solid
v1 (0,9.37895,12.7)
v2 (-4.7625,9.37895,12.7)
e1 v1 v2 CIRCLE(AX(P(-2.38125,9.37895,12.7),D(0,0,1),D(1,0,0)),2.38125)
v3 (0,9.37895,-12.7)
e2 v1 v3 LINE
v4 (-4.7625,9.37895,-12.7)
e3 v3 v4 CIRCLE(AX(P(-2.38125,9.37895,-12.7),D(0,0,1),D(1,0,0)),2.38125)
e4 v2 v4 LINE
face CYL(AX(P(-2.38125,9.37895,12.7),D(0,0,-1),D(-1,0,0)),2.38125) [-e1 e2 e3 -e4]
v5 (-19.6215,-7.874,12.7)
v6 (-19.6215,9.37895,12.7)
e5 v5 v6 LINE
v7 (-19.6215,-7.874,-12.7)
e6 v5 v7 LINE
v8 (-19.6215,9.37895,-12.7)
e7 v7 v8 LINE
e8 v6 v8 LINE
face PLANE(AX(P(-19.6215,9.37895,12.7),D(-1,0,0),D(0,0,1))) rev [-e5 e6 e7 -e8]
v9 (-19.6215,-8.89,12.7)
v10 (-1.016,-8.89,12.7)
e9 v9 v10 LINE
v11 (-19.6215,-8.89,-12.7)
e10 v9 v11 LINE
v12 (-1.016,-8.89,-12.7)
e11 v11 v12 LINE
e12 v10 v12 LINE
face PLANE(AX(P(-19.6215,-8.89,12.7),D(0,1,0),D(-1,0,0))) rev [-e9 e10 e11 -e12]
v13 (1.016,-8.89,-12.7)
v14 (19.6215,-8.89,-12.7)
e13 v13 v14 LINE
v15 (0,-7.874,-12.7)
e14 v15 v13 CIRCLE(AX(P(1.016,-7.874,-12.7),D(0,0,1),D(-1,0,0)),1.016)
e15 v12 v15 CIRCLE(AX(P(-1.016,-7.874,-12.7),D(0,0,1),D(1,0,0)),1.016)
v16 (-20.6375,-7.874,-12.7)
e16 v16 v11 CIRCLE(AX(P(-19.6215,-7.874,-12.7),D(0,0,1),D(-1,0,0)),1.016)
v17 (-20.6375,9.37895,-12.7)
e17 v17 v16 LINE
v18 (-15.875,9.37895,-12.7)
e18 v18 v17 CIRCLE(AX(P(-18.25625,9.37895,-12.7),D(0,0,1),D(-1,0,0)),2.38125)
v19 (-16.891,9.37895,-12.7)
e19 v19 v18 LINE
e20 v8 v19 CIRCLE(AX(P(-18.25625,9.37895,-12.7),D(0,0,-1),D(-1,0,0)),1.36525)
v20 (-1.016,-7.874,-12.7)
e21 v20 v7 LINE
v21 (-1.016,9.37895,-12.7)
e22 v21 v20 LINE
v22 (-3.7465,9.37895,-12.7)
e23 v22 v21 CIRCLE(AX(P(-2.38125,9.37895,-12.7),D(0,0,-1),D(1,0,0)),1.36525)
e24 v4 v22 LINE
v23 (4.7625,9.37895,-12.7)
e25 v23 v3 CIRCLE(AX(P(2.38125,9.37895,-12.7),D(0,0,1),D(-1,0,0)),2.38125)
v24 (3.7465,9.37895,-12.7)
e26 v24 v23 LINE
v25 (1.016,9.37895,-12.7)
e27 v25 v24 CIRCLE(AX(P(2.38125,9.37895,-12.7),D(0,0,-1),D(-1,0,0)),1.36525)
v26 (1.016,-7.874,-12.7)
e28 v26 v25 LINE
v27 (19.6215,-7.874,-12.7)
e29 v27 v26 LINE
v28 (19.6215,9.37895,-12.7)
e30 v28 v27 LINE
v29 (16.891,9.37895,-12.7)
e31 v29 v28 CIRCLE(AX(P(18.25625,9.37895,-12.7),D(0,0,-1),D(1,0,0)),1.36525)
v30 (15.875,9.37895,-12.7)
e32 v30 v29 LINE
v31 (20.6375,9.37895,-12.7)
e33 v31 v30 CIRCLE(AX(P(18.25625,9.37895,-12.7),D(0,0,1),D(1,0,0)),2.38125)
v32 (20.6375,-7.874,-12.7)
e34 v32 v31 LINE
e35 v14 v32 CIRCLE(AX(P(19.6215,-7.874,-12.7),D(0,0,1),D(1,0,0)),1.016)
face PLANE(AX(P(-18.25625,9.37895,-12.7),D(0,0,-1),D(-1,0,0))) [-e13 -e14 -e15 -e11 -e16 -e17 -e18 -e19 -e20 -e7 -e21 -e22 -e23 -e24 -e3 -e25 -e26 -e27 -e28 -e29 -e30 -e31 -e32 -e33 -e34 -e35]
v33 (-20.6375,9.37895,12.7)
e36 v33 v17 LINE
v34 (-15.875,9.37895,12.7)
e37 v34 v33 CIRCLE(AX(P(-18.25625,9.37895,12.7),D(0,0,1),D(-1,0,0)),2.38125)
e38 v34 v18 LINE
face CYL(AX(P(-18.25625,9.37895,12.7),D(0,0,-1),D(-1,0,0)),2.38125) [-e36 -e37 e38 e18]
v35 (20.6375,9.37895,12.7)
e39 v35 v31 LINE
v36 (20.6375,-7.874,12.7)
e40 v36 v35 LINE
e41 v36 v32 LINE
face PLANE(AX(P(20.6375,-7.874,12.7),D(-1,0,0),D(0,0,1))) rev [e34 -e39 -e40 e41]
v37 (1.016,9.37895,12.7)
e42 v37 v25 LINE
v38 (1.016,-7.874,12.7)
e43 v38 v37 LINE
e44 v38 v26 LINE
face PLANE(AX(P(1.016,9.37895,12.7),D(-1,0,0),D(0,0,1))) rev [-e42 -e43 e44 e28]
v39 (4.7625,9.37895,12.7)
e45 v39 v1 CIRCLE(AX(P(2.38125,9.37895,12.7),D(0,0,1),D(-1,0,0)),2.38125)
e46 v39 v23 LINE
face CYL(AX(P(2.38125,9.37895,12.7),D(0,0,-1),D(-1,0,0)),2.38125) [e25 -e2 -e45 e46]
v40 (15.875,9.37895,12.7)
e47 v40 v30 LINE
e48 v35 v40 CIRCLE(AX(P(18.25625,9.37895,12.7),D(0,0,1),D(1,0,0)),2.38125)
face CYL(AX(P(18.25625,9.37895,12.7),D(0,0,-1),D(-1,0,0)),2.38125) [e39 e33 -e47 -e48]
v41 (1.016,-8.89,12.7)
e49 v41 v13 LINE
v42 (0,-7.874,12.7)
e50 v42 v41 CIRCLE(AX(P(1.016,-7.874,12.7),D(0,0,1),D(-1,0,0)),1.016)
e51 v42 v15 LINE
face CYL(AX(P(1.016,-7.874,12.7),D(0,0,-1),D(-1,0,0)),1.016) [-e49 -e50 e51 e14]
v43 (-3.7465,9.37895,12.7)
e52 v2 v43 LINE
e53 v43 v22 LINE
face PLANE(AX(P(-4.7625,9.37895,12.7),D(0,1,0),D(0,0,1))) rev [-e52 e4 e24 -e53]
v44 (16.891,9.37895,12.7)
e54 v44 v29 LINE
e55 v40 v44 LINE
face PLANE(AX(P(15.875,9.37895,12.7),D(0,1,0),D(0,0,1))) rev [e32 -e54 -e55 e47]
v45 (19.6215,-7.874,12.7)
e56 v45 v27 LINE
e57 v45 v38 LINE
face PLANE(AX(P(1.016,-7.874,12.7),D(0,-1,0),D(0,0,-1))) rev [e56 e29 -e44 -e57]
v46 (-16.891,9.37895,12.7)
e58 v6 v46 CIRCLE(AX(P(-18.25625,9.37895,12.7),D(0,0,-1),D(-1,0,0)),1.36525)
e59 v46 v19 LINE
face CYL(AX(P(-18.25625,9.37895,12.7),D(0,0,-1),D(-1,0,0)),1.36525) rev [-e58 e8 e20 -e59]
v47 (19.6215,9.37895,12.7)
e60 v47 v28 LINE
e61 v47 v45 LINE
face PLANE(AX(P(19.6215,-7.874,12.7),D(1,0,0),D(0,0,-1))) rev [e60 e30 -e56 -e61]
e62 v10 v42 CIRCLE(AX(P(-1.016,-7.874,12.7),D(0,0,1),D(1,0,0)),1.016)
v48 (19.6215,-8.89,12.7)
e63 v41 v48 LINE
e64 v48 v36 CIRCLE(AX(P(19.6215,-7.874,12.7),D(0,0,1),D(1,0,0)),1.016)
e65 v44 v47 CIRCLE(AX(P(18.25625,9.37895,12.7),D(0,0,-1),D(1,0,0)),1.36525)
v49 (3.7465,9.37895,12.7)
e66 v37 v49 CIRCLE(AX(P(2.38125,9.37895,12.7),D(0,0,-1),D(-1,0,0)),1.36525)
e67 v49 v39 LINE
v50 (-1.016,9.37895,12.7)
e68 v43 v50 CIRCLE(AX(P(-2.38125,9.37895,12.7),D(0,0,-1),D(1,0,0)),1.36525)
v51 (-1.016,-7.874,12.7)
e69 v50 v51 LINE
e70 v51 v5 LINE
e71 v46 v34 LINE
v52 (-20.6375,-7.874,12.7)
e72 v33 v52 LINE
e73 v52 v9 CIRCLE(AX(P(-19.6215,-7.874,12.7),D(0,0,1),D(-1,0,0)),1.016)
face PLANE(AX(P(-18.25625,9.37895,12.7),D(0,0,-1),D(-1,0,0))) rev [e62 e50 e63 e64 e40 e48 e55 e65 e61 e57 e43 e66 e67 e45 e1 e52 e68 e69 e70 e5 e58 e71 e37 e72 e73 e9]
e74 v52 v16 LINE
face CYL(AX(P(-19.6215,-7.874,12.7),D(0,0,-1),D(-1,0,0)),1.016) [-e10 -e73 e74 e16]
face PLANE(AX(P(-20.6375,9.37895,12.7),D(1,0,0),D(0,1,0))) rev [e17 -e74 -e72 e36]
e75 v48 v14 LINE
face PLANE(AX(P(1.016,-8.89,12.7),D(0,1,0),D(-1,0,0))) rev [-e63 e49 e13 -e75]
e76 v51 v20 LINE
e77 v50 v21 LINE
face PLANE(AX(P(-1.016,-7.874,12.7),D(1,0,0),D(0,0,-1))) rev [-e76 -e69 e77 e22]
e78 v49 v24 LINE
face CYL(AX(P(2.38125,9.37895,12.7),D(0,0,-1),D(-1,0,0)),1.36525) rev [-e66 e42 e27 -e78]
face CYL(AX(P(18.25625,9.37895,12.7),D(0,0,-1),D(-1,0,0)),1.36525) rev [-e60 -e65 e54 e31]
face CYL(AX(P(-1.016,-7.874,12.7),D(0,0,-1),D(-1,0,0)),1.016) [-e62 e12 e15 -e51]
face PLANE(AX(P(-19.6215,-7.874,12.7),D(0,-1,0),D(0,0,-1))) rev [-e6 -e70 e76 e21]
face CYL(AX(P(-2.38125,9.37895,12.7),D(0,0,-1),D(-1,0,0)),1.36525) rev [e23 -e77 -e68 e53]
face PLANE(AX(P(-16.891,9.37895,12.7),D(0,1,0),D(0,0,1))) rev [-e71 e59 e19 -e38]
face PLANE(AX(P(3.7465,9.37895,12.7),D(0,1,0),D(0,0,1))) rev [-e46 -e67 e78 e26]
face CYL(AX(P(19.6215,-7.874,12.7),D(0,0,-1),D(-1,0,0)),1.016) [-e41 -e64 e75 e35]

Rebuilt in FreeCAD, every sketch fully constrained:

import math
import FreeCAD as App
import Part
import Sketcher
Q = App.Units.Quantity

doc = App.newDocument("Part")
params = doc.addObject("Spreadsheet::Sheet", "Params")
for row, (alias, value) in enumerate([
    ("sketch1_radius", "0.04 in"),
    ("sketch1_radius2", "0.09375 in"),
    ("pad1_length", "1 in"),
    ("linearpattern_pitch", "0.8125 in"),
], start=1):
    params.set(f"A{row}", alias)
    params.set(f"B{row}", "=" + value)
    params.setAlias(f"B{row}", alias)

body = doc.addObject("PartDesign::Body", "Body")

# Sketch on XY plane
sketch1 = body.newObject("Sketcher::SketchObject", "Sketch")
sketch1.AttachmentSupport = (doc.getObject("XY_Plane"), [""])
sketch1.MapMode = "FlatFace"
sketch1.addGeometry([
    Part.LineSegment(App.Vector(-20.6, 9.4, 0), App.Vector(-20.6, -7.9, 0)),  # 0
    Part.ArcOfCircle(Part.Circle(App.Vector(-19.6, -7.9, 0), App.Vector(0, 0, 1), 1), math.radians(180), math.radians(270)),  # 1
    Part.LineSegment(App.Vector(-19.6, -8.9, 0), App.Vector(-1, -8.9, 0)),  # 2
    Part.ArcOfCircle(Part.Circle(App.Vector(-1, -7.9, 0), App.Vector(0, 0, 1), 1), math.radians(-90), math.radians(0)),  # 3
    Part.LineSegment(App.Vector(0, -7.9, 0), App.Vector(0, 9.4, 0)),  # 4
    Part.ArcOfCircle(Part.Circle(App.Vector(-2.4, 9.4, 0), App.Vector(0, 0, 1), 2.4), math.radians(0), math.radians(180)),  # 5
    Part.LineSegment(App.Vector(-4.8, 9.4, 0), App.Vector(-3.7, 9.4, 0)),  # 6
    Part.ArcOfCircle(Part.Circle(App.Vector(-2.4, 9.4, 0), App.Vector(0, 0, 1), 1.4), math.radians(0), math.radians(180)),  # 7
    Part.LineSegment(App.Vector(-1, 9.4, 0), App.Vector(-1, -7.9, 0)),  # 8
    Part.LineSegment(App.Vector(-1, -7.9, 0), App.Vector(-19.6, -7.9, 0)),  # 9
    Part.LineSegment(App.Vector(-19.6, -7.9, 0), App.Vector(-19.6, 9.4, 0)),  # 10
    Part.ArcOfCircle(Part.Circle(App.Vector(-18.3, 9.4, 0), App.Vector(0, 0, 1), 1.4), math.radians(0), math.radians(180)),  # 11
    Part.LineSegment(App.Vector(-16.9, 9.4, 0), App.Vector(-15.9, 9.4, 0)),  # 12
    Part.ArcOfCircle(Part.Circle(App.Vector(-18.3, 9.4, 0), App.Vector(0, 0, 1), 2.4), math.radians(0), math.radians(180)),  # 13
], False)
sketch1.addConstraint([
    Sketcher.Constraint("Tangent", 0, 2, 1, 1),
    Sketcher.Constraint("Tangent", 1, 2, 2, 1),
    Sketcher.Constraint("Tangent", 2, 2, 3, 1),
    Sketcher.Constraint("Tangent", 3, 2, 4, 1),
    Sketcher.Constraint("Tangent", 4, 2, 5, 1),
    Sketcher.Constraint("Coincident", 5, 2, 6, 1),
    Sketcher.Constraint("Coincident", 6, 2, 7, 2),
    Sketcher.Constraint("Tangent", 7, 1, 8, 1),
    Sketcher.Constraint("Coincident", 8, 2, 9, 1),
    Sketcher.Constraint("Coincident", 9, 2, 10, 1),
    Sketcher.Constraint("Tangent", 10, 2, 11, 2),
    Sketcher.Constraint("Coincident", 11, 1, 12, 1),
    Sketcher.Constraint("Coincident", 12, 2, 13, 1),
    Sketcher.Constraint("Tangent", 13, 2, 0, 1),
    Sketcher.Constraint("Vertical", 0),
    Sketcher.Constraint("Horizontal", 2),
    Sketcher.Constraint("Vertical", 4),
    Sketcher.Constraint("Horizontal", 6),
    Sketcher.Constraint("Vertical", 8),
    Sketcher.Constraint("Horizontal", 9),
    Sketcher.Constraint("Vertical", 10),
    Sketcher.Constraint("Horizontal", 12),
    Sketcher.Constraint("Coincident", 7, 3, 5, 3),
    Sketcher.Constraint("Coincident", 13, 3, 11, 3),
    Sketcher.Constraint("Coincident", 8, 2, 3, 3),
    Sketcher.Constraint("Coincident", 9, 2, 1, 3),
    Sketcher.Constraint("Equal", 7, 11),
    Sketcher.Constraint("PointOnObject", 3, 2, -2),
    Sketcher.Constraint("Horizontal", 7, 3, 11, 3),
    Sketcher.Constraint("Horizontal", 4, 2, 5, 2),
    Sketcher.Constraint("Horizontal", 10, 2, 11, 1),
    Sketcher.Constraint("Radius", 1, Q("0.04 in")),
    Sketcher.Constraint("Radius", 5, Q("0.09375 in")),
    Sketcher.Constraint("DistanceY", 1, 3, -1, 1, Q("0.31 in")),
    Sketcher.Constraint("DistanceX", 2, 1, 2, 2, Q("0.7325 in")),
    Sketcher.Constraint("DistanceY", 0, 2, 0, 1, 17.25295),
])
sketch1.setExpression("Constraints[31]", "Params.sketch1_radius")
sketch1.setExpression("Constraints[32]", "Params.sketch1_radius2")
pad1 = body.newObject("PartDesign::Pad", "Pad")
pad1.Profile = sketch1
pad1.setExpression("Length", "Params.pad1_length")
pad1.Midplane = True
doc.recompute()

linearpattern = body.newObject("PartDesign::LinearPattern", "LinearPattern")
linearpattern.Originals = [pad1]
linearpattern.Direction = (doc.getObject("X_Axis"), [""])
linearpattern.Mode = "offset"
linearpattern.setExpression("Offset", "Params.linearpattern_pitch")
linearpattern.Occurrences = 2
body.Tip = linearpattern

doc.recompute()
